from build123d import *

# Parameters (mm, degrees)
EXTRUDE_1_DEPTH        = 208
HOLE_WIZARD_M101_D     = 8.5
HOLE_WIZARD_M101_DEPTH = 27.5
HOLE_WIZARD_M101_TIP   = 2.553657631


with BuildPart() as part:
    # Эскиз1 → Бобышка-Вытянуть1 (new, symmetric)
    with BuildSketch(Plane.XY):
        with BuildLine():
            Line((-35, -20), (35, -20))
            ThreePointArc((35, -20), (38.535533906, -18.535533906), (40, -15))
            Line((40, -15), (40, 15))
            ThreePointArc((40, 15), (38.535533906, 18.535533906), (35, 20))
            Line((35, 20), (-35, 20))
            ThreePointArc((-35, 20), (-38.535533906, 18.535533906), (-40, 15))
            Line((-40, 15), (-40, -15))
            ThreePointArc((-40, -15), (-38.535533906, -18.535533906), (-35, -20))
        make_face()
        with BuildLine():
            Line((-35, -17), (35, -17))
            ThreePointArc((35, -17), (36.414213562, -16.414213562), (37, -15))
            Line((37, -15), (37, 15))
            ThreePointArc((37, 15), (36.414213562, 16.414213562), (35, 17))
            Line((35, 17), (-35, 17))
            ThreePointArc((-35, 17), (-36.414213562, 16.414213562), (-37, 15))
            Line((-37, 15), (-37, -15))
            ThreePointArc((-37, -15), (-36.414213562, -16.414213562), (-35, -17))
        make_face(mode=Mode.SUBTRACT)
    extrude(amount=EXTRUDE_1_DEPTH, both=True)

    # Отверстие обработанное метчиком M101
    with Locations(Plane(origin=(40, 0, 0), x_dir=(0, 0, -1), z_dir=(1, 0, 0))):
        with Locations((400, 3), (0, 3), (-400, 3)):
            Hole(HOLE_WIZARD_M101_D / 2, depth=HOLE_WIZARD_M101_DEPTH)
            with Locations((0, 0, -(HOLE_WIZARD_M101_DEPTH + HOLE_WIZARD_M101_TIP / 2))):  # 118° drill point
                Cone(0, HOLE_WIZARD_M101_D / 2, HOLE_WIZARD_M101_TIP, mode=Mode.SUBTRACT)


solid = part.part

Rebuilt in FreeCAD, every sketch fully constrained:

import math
import FreeCAD as App
import Part
import Sketcher
Q = App.Units.Quantity

doc = App.newDocument("Part")
body = doc.addObject("PartDesign::Body", "Body")

sketch1 = body.newObject("Sketcher::SketchObject", "Sketch")
sketch1.AttachmentSupport = (doc.getObject("XY_Plane"), [""])
sketch1.MapMode = "FlatFace"
sketch1.addGeometry([
    Part.LineSegment(App.Vector(-35, -20, 0), App.Vector(35, -20, 0)),
    Part.ArcOfCircle(Part.Circle(App.Vector(35, -15, 0), App.Vector(0, 0, 1), 5), math.radians(-90), math.radians(0)),
    Part.LineSegment(App.Vector(40, -15, 0), App.Vector(40, 15, 0)),
    Part.ArcOfCircle(Part.Circle(App.Vector(35, 15, 0), App.Vector(0, 0, 1), 5), math.radians(0), math.radians(90)),
    Part.LineSegment(App.Vector(35, 20, 0), App.Vector(-35, 20, 0)),
    Part.ArcOfCircle(Part.Circle(App.Vector(-35, 15, 0), App.Vector(0, 0, 1), 5), math.radians(90), math.radians(180)),
    Part.LineSegment(App.Vector(-40, 15, 0), App.Vector(-40, -15, 0)),
    Part.ArcOfCircle(Part.Circle(App.Vector(-35, -15, 0), App.Vector(0, 0, 1), 5), math.radians(180), math.radians(270)),
    Part.LineSegment(App.Vector(35, -17, 0), App.Vector(-35, -17, 0)),
    Part.ArcOfCircle(Part.Circle(App.Vector(-35, -15, 0), App.Vector(0, 0, 1), 2), math.radians(-180), math.radians(-90)),
    Part.LineSegment(App.Vector(-37, -15, 0), App.Vector(-37, 15, 0)),
    Part.ArcOfCircle(Part.Circle(App.Vector(-35, 15, 0), App.Vector(0, 0, 1), 2), math.radians(90), math.radians(180)),
    Part.LineSegment(App.Vector(-35, 17, 0), App.Vector(35, 17, 0)),
    Part.ArcOfCircle(Part.Circle(App.Vector(35, 15, 0), App.Vector(0, 0, 1), 2), math.radians(0), math.radians(90)),
    Part.LineSegment(App.Vector(37, 15, 0), App.Vector(37, -15, 0)),
    Part.ArcOfCircle(Part.Circle(App.Vector(35, -15, 0), App.Vector(0, 0, 1), 2), math.radians(-90), math.radians(0)),
], False)
sketch1.addConstraint([
    Sketcher.Constraint("Tangent", 0, 2, 1, 1),
    Sketcher.Constraint("Tangent", 1, 2, 2, 1),
    Sketcher.Constraint("Tangent", 2, 2, 3, 1),
    Sketcher.Constraint("Tangent", 3, 2, 4, 1),
    Sketcher.Constraint("Tangent", 4, 2, 5, 1),
    Sketcher.Constraint("Tangent", 5, 2, 6, 1),
    Sketcher.Constraint("Tangent", 6, 2, 7, 1),
    Sketcher.Constraint("Tangent", 7, 2, 0, 1),
    Sketcher.Constraint("Tangent", 8, 2, 9, 2),
    Sketcher.Constraint("Tangent", 9, 1, 10, 1),
    Sketcher.Constraint("Tangent", 10, 2, 11, 2),
    Sketcher.Constraint("Tangent", 11, 1, 12, 1),
    Sketcher.Constraint("Tangent", 12, 2, 13, 2),
    Sketcher.Constraint("Tangent", 13, 1, 14, 1),
    Sketcher.Constraint("Tangent", 14, 2, 15, 2),
    Sketcher.Constraint("Tangent", 15, 1, 8, 1),
    Sketcher.Constraint("Horizontal", 0),
    Sketcher.Constraint("Vertical", 2),
    Sketcher.Constraint("Horizontal", 4),
    Sketcher.Constraint("Vertical", 6),
    Sketcher.Constraint("Horizontal", 8),
    Sketcher.Constraint("Vertical", 10),
    Sketcher.Constraint("Horizontal", 12),
    Sketcher.Constraint("Vertical", 14),
    Sketcher.Constraint("Coincident", 9, 3, 7, 3),
    Sketcher.Constraint("Coincident", 11, 3, 5, 3),
    Sketcher.Constraint("Coincident", 13, 3, 3, 3),
    Sketcher.Constraint("Equal", 1, 3),
    Sketcher.Constraint("Equal", 3, 5),
    Sketcher.Constraint("Equal", 5, 7),
    Sketcher.Constraint("Equal", 13, 15),
    Sketcher.Constraint("Symmetric", 1, 3, 5, 3, -1, 1),
    Sketcher.Constraint("Radius", 1, Q("5 mm")),
    Sketcher.Constraint("Radius", 9, Q("2 mm")),
    Sketcher.Constraint("DistanceX", 0, 1, 0, 2, Q("70 mm")),
    Sketcher.Constraint("DistanceY", 2, 1, 2, 2, Q("30 mm")),
])
pad1 = body.newObject("PartDesign::Pad", "Pad")
pad1.Profile = sketch1
pad1.Length = 416
pad1.Midplane = True

sketch2 = body.newObject("Sketcher::SketchObject", "Sketch001")
sketch2.AttachmentSupport = (doc.getObject("YZ_Plane"), [""])
sketch2.MapMode = "FlatFace"
sketch2.AttachmentOffset = App.Placement(App.Vector(0, 0, 40), App.Rotation())
sketch2.addGeometry([
    Part.Circle(App.Vector(3, -400, 0), App.Vector(0, 0, 1), 4.2),
    Part.Circle(App.Vector(3, 0, 0), App.Vector(0, 0, 1), 4.2),
    Part.Circle(App.Vector(3, 400, 0), App.Vector(0, 0, 1), 4.2),
], False)
sketch2.addConstraint([
    Sketcher.Constraint("Equal", 0, 1),
    Sketcher.Constraint("Equal", 1, 2),
    Sketcher.Constraint("Symmetric", 0, 3, 2, 3, -1),
    Sketcher.Constraint("PointOnObject", 1, 3, -1),
    Sketcher.Constraint("Vertical", 0, 3, 1, 3),
    Sketcher.Constraint("Diameter", 0, Q("8.5 mm")),
    Sketcher.Constraint("DistanceX", -1, 1, 0, 3, Q("3 mm")),
    Sketcher.Constraint("DistanceY", 0, 3, -1, 1, Q("400 mm")),
])
doc.recompute()
hole = body.newObject("PartDesign::Hole", "Hole")
hole.Profile = sketch2
hole.ThreadType = "None"
hole.Diameter = 8.5
hole.DepthType = "Dimension"
hole.Depth = 27.5
hole.DrillPoint = "Angled"
hole.DrillPointAngle = 118

doc.recompute()
